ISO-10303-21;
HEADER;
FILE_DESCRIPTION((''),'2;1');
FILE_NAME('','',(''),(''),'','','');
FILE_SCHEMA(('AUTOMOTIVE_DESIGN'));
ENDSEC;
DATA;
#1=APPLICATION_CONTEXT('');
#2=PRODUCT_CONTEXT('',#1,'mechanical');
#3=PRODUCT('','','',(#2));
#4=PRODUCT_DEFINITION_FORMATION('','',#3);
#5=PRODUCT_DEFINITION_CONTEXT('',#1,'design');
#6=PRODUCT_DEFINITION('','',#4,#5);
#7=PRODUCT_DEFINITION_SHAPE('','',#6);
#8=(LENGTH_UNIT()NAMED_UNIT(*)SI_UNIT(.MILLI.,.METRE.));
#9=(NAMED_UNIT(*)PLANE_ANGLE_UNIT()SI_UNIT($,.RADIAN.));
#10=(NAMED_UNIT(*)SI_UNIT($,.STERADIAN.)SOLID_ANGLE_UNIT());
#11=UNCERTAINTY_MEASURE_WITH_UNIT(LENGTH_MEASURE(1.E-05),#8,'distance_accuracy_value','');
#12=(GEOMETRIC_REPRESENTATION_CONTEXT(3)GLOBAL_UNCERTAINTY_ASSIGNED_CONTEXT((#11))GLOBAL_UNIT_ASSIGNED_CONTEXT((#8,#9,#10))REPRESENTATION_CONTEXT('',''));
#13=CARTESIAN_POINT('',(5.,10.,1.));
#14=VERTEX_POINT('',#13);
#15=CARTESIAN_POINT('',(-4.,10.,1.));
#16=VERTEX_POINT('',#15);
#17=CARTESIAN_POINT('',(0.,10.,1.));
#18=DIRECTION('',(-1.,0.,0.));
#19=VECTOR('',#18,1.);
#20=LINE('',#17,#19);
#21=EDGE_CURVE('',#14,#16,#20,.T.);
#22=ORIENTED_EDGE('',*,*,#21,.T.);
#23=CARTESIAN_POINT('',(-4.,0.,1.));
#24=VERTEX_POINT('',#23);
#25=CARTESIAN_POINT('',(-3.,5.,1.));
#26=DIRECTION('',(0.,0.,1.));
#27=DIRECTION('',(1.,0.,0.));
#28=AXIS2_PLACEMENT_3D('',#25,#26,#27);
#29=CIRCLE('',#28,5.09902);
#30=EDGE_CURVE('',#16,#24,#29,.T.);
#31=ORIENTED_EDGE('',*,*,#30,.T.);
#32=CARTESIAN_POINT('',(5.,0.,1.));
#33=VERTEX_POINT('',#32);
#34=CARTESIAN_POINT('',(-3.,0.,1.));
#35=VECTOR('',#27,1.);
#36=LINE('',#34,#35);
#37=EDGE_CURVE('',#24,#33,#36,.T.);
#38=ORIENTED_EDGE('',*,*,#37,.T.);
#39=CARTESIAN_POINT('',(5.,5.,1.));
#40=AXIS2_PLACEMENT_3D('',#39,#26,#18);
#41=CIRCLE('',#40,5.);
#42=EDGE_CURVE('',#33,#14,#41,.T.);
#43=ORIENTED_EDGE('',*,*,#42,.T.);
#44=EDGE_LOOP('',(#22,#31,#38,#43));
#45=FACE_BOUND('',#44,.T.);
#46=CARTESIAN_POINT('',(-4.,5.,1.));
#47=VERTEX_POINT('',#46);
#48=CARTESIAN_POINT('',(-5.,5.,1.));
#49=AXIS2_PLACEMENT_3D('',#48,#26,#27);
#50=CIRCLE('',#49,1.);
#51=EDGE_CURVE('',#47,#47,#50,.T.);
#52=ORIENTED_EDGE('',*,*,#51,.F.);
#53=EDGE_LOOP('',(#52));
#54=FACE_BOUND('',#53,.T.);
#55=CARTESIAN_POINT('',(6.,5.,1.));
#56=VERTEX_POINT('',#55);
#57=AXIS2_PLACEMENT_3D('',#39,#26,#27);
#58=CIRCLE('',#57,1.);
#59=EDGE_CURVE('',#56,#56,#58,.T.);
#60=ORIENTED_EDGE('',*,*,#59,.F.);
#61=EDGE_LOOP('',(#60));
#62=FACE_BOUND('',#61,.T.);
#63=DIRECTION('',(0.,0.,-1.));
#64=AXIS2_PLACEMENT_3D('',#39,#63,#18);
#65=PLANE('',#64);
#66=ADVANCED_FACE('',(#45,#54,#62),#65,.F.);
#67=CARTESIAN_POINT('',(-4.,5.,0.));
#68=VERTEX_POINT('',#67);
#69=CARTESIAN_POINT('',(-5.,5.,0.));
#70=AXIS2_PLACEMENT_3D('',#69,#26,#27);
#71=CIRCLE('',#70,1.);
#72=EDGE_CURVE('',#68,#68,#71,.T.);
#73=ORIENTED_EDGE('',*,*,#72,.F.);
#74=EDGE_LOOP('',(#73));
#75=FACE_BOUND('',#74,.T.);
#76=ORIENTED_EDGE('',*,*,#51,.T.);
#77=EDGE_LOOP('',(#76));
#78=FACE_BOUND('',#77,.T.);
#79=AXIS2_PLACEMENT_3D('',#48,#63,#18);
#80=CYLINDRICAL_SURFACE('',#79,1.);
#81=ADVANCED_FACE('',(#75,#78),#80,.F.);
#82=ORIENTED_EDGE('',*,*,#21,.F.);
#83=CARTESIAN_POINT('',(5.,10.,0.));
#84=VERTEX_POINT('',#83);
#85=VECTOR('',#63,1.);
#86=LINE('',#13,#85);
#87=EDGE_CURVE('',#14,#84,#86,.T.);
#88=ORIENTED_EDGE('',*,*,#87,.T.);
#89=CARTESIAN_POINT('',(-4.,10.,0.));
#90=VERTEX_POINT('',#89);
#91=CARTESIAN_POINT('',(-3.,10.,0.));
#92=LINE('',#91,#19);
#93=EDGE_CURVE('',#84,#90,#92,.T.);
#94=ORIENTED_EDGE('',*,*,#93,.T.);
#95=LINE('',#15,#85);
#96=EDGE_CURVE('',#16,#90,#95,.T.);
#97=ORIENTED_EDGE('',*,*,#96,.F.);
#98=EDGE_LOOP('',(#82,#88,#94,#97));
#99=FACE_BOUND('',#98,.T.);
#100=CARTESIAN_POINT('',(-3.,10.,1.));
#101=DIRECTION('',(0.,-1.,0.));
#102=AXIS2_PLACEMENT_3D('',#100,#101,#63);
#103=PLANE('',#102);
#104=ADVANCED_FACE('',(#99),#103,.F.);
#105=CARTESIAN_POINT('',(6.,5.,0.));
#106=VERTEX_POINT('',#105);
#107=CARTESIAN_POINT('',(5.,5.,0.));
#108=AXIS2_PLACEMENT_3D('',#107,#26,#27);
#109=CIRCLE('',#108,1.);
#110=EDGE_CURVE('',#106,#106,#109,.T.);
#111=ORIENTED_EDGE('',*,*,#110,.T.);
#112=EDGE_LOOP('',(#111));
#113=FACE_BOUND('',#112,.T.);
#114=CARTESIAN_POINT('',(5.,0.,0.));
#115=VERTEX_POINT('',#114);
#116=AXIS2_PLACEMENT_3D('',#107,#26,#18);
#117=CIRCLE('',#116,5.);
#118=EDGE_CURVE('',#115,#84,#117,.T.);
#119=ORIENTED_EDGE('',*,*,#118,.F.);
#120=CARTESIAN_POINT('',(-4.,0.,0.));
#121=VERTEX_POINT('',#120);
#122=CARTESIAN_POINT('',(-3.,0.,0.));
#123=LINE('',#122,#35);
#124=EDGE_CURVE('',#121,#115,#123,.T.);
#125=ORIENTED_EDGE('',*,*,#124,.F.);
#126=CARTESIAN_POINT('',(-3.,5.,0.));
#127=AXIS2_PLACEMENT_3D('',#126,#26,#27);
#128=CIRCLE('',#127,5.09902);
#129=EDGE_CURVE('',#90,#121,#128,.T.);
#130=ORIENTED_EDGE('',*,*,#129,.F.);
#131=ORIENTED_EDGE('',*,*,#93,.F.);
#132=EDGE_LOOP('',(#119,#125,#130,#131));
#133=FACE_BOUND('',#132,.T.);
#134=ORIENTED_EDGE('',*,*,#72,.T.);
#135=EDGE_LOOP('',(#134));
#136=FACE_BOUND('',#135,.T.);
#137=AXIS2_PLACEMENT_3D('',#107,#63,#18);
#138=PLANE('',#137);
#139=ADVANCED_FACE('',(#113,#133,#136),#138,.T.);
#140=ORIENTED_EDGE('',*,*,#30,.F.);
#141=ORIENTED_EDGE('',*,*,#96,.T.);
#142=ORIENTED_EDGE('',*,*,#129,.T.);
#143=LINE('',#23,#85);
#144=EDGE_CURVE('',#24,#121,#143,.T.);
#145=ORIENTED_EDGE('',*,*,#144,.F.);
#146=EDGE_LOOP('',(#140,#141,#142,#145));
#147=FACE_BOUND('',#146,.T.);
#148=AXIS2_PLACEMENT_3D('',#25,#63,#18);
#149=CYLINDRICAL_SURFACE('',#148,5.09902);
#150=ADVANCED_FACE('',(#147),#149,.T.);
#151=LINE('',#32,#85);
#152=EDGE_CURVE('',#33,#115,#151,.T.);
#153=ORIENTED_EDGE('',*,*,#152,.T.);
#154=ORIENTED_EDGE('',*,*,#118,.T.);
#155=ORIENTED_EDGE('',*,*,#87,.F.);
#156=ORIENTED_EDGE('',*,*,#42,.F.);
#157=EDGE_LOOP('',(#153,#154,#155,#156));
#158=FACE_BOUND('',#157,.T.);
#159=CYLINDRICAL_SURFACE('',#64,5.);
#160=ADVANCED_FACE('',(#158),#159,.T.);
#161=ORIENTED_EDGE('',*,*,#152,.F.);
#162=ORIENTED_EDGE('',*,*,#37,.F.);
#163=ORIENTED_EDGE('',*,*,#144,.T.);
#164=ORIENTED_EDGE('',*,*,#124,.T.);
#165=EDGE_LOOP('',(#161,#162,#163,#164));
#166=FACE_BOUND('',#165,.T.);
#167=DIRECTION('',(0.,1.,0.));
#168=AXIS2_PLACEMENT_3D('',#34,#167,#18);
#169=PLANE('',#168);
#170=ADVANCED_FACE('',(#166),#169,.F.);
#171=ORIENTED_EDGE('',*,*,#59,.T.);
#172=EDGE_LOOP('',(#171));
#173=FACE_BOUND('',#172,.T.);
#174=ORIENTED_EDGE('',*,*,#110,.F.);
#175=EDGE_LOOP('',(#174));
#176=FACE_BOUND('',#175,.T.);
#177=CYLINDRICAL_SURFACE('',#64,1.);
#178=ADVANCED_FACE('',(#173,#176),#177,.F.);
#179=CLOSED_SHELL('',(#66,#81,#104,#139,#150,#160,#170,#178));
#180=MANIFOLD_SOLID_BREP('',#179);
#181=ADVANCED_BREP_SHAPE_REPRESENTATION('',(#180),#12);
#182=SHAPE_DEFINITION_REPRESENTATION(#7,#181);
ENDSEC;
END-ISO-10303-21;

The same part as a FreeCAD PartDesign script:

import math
import FreeCAD as App
import Part
import Sketcher

doc = App.newDocument("Part")
body = doc.addObject("PartDesign::Body", "Body")

sketch1 = body.newObject("Sketcher::SketchObject", "Sketch")
sketch1.AttachmentSupport = (doc.getObject("XY_Plane"), [""])
sketch1.MapMode = "FlatFace"
sketch1.addGeometry([
    Part.ArcOfCircle(Part.Circle(App.Vector(-3, 5, 0), App.Vector(0, 0, 1), 5.1), math.radians(101), math.radians(259)),
    Part.LineSegment(App.Vector(-4, 0, 0), App.Vector(5, 0, 0)),
    Part.ArcOfCircle(Part.Circle(App.Vector(5, 5, 0), App.Vector(0, 0, 1), 5), math.radians(-90), math.radians(90)),
    Part.LineSegment(App.Vector(5, 10, 0), App.Vector(-4, 10, 0)),
    Part.Circle(App.Vector(-5, 5, 0), App.Vector(0, 0, 1), 1),
    Part.Circle(App.Vector(5, 5, 0), App.Vector(0, 0, 1), 1),
], False)
sketch1.addConstraint([
    Sketcher.Constraint("Coincident", 0, 2, 1, 1),
    Sketcher.Constraint("Tangent", 1, 2, 2, 1),
    Sketcher.Constraint("Tangent", 2, 2, 3, 1),
    Sketcher.Constraint("Coincident", 3, 2, 0, 1),
    Sketcher.Constraint("Horizontal", 1),
    Sketcher.Constraint("Horizontal", 3),
    Sketcher.Constraint("Coincident", 5, 3, 2, 3),
    Sketcher.Constraint("Equal", 4, 5),
    Sketcher.Constraint("Symmetric", 2, 3, 4, 3, -2),
    Sketcher.Constraint("PointOnObject", 0, 2, -1),
    Sketcher.Constraint("Horizontal", 0, 3, 2, 3),
    Sketcher.Constraint("Diameter", 4, 2.0),
    Sketcher.Constraint("Radius", 2, 5.0),
    Sketcher.Constraint("DistanceX", 1, 1, 1, 2, 9.0),
    Sketcher.Constraint("DistanceX", 0, 3, -1, 1, 3.0),
    Sketcher.Constraint("DistanceX", -1, 1, 2, 3, 5.0),
])
pad1 = body.newObject("PartDesign::Pad", "Pad")
pad1.Profile = sketch1
pad1.Length = 1

doc.recompute()
